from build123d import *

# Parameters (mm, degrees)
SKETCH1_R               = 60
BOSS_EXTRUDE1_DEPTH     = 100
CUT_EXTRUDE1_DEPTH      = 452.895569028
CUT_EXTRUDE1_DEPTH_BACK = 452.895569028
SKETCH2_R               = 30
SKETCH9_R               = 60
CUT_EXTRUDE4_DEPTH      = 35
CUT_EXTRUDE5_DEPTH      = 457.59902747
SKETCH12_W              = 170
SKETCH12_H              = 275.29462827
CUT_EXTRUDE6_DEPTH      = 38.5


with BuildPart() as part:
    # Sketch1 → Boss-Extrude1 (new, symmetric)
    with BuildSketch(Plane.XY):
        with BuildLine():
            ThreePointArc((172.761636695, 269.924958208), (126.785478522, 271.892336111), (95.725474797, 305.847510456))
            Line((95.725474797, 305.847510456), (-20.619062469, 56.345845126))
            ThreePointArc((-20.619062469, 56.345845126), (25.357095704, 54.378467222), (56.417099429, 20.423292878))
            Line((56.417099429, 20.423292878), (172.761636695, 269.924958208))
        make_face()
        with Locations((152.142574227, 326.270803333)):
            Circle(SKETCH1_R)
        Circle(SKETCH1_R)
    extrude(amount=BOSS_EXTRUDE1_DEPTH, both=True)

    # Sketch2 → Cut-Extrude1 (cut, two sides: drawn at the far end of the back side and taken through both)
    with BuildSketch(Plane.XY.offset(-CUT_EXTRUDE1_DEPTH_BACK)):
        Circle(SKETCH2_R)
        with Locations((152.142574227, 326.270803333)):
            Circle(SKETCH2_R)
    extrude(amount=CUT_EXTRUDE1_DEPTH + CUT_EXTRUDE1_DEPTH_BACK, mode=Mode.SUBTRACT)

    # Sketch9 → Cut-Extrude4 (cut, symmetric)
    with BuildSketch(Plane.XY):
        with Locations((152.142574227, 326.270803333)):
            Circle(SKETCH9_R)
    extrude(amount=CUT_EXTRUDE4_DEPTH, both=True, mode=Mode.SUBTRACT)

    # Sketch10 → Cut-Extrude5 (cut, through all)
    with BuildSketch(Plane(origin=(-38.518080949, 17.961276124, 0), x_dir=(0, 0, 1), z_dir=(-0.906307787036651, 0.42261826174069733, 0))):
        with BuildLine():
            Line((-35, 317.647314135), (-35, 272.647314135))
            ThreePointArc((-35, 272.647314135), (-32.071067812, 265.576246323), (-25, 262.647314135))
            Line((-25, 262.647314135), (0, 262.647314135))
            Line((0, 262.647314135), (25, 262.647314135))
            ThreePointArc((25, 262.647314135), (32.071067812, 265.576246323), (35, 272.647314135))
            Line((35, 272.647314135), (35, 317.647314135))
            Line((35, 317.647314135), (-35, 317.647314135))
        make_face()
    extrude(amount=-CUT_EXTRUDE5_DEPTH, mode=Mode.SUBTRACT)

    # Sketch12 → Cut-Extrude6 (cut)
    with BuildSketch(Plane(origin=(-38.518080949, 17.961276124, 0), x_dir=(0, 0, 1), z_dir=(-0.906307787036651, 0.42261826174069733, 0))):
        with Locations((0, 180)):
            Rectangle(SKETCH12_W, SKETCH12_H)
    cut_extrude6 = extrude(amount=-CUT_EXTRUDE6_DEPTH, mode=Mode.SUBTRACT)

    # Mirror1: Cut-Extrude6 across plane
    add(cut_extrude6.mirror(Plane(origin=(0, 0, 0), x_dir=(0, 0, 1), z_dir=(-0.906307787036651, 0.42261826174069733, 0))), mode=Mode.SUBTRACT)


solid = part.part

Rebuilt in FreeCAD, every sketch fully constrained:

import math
import FreeCAD as App
import Part
import Sketcher
Q = App.Units.Quantity


def add_polygon(sketch, points):
    """Adds a closed chain of lines whose ends are joined by coincident constraints."""
    first, n = sketch.GeometryCount, len(points)
    for a, b in zip(points, points[1:] + points[:1]):
        sketch.addGeometry(Part.LineSegment(App.Vector(*a, 0), App.Vector(*b, 0)), False)
    for i in range(n):
        sketch.addConstraint(Sketcher.Constraint("Coincident", first + i, 2, first + (i + 1) % n, 1))

doc = App.newDocument("Part")
body = doc.addObject("PartDesign::Body", "Body")

# Sketch on XY plane
sketch1 = body.newObject("Sketcher::SketchObject", "Sketch")
sketch1.AttachmentSupport = (doc.getObject("XY_Plane"), [""])
sketch1.MapMode = "FlatFace"
sketch1.addGeometry(Part.LineSegment(App.Vector(96, 306, 0), App.Vector(-21, 56, 0)), False)
sketch1.addGeometry(Part.ArcOfCircle(Part.Circle(App.Vector(0, 0, 0), App.Vector(0, 0, 1), 60), math.radians(110), math.radians(380)), False)
sketch1.addGeometry(Part.LineSegment(App.Vector(56, 20, 0), App.Vector(173, 270, 0)), False)
sketch1.addGeometry(Part.ArcOfCircle(Part.Circle(App.Vector(152, 326, 0), App.Vector(0, 0, 1), 60), math.radians(-70), math.radians(200)), False)
sketch1.addConstraint(Sketcher.Constraint("Coincident", 0, 2, 1, 1))
sketch1.addConstraint(Sketcher.Constraint("Coincident", 1, 2, 2, 1))
sketch1.addConstraint(Sketcher.Constraint("Coincident", 2, 2, 3, 1))
sketch1.addConstraint(Sketcher.Constraint("Coincident", 3, 2, 0, 1))
sketch1.addConstraint(Sketcher.Constraint("Coincident", 1, 3, -1, 1))
sketch1.addConstraint(Sketcher.Constraint("Equal", 1, 3))
sketch1.addConstraint(Sketcher.Constraint("Parallel", 0, 2))
sketch1.addConstraint(Sketcher.Constraint("Equal", 0, 2))
sketch1.addConstraint(Sketcher.Constraint("Radius", 1, 60.0))
sketch1.addConstraint(Sketcher.Constraint("Angle", 0, Q("-115 deg")))
sketch1.addConstraint(Sketcher.Constraint("DistanceX", -1, 1, 1, 2, 56.417099))
sketch1.addConstraint(Sketcher.Constraint("DistanceX", 0, 2, 2, 2, 193.380699))
sketch1.addConstraint(Sketcher.Constraint("Distance", 0, 275.294628))
pad1 = body.newObject("PartDesign::Pad", "Pad")
pad1.Profile = sketch1
pad1.Length = 200
pad1.Midplane = True

# Sketch on XY plane
sketch2 = body.newObject("Sketcher::SketchObject", "Sketch001")
sketch2.AttachmentSupport = (doc.getObject("XY_Plane"), [""])
sketch2.MapMode = "FlatFace"
sketch2.addGeometry(Part.Circle(App.Vector(0, 0, 0), App.Vector(0, 0, 1), 30), False)
sketch2.addGeometry(Part.Circle(App.Vector(152, 326, 0), App.Vector(0, 0, 1), 30), False)
sketch2.addConstraint(Sketcher.Constraint("Coincident", 0, 3, -1, 1))
sketch2.addConstraint(Sketcher.Constraint("Equal", 0, 1))
sketch2.addConstraint(Sketcher.Constraint("Diameter", 0, 60.0))
sketch2.addConstraint(Sketcher.Constraint("DistanceX", -1, 1, 1, 3, 152.142574))
sketch2.addConstraint(Sketcher.Constraint("DistanceY", -1, 1, 1, 3, 326.270803))
pocket1 = body.newObject("PartDesign::Pocket", "Pocket")
pocket1.Profile = sketch2
pocket1.Type = "ThroughAll"
pocket1.Midplane = True

# Sketch on XY plane
sketch3 = body.newObject("Sketcher::SketchObject", "Sketch002")
sketch3.AttachmentSupport = (doc.getObject("XY_Plane"), [""])
sketch3.MapMode = "FlatFace"
sketch3.addGeometry(Part.Circle(App.Vector(152, 326, 0), App.Vector(0, 0, 1), 60), False)
sketch3.addConstraint(Sketcher.Constraint("Diameter", 0, 120.0))
sketch3.addConstraint(Sketcher.Constraint("DistanceX", -1, 1, 0, 3, 152.142574))
sketch3.addConstraint(Sketcher.Constraint("DistanceY", -1, 1, 0, 3, 326.270803))
pocket2 = body.newObject("PartDesign::Pocket", "Pocket001")
pocket2.Profile = sketch3
pocket2.Length = 70
pocket2.Midplane = True

# Sketch on an angled plane
sketch4 = body.newObject("Sketcher::SketchObject", "Sketch003")
sketch4.Placement = App.Placement(App.Vector(-38.518081, 17.961276, 0), App.Rotation(App.Vector(0, 0, 1), App.Vector(0.422618262, 0.906307787, 0), App.Vector(-0.906307787, 0.422618262, 0), "ZXY"))
sketch4.addGeometry(Part.LineSegment(App.Vector(-35, 318, 0), App.Vector(-35, 273, 0)), False)
sketch4.addGeometry(Part.ArcOfCircle(Part.Circle(App.Vector(-25, 273, 0), App.Vector(0, 0, 1), 10), math.radians(180), math.radians(270)), False)
sketch4.addGeometry(Part.LineSegment(App.Vector(-25, 263, 0), App.Vector(25, 263, 0)), False)
sketch4.addGeometry(Part.ArcOfCircle(Part.Circle(App.Vector(25, 273, 0), App.Vector(0, 0, 1), 10), math.radians(-90), math.radians(0)), False)
sketch4.addGeometry(Part.LineSegment(App.Vector(35, 273, 0), App.Vector(35, 318, 0)), False)
sketch4.addGeometry(Part.LineSegment(App.Vector(35, 318, 0), App.Vector(-35, 318, 0)), False)
sketch4.addConstraint(Sketcher.Constraint("Tangent", 0, 2, 1, 1))
sketch4.addConstraint(Sketcher.Constraint("Tangent", 1, 2, 2, 1))
sketch4.addConstraint(Sketcher.Constraint("Tangent", 2, 2, 3, 1))
sketch4.addConstraint(Sketcher.Constraint("Tangent", 3, 2, 4, 1))
sketch4.addConstraint(Sketcher.Constraint("Coincident", 4, 2, 5, 1))
sketch4.addConstraint(Sketcher.Constraint("Coincident", 5, 2, 0, 1))
sketch4.addConstraint(Sketcher.Constraint("Vertical", 0))
sketch4.addConstraint(Sketcher.Constraint("Horizontal", 2))
sketch4.addConstraint(Sketcher.Constraint("Vertical", 4))
sketch4.addConstraint(Sketcher.Constraint("Horizontal", 5))
sketch4.addConstraint(Sketcher.Constraint("Equal", 1, 3))
sketch4.addConstraint(Sketcher.Constraint("Radius", 1, 10.0))
sketch4.addConstraint(Sketcher.Constraint("DistanceX", 2, 1, 2, 2, 50.0))
sketch4.addConstraint(Sketcher.Constraint("DistanceY", 0, 2, 0, 1, 45.0))
sketch4.addConstraint(Sketcher.Constraint("DistanceX", 1, 3, -1, 1, 25.0))
sketch4.addConstraint(Sketcher.Constraint("DistanceY", -1, 1, 1, 3, 272.647314))
pocket3 = body.newObject("PartDesign::Pocket", "Pocket002")
pocket3.Profile = sketch4
pocket3.Type = "ThroughAll"

# Sketch on an angled plane
sketch5 = body.newObject("Sketcher::SketchObject", "Sketch004")
sketch5.Placement = App.Placement(App.Vector(-38.518081, 17.961276, 0), App.Rotation(App.Vector(0, 0, 1), App.Vector(0.422618262, 0.906307787, 0), App.Vector(-0.906307787, 0.422618262, 0), "ZXY"))
add_polygon(sketch5, [(-85, 318), (-85, 42), (85, 42), (85, 318)])  # lines 0-3
sketch5.addConstraint(Sketcher.Constraint("Vertical", 0))
sketch5.addConstraint(Sketcher.Constraint("Horizontal", 1))
sketch5.addConstraint(Sketcher.Constraint("Vertical", 2))
sketch5.addConstraint(Sketcher.Constraint("Horizontal", 3))
sketch5.addConstraint(Sketcher.Constraint("DistanceX", 1, 1, 1, 2, 170.0))
sketch5.addConstraint(Sketcher.Constraint("DistanceX", 0, 2, -1, 1, 85.0))
sketch5.addConstraint(Sketcher.Constraint("DistanceY", 0, 2, 0, 1, 275.294628))
sketch5.addConstraint(Sketcher.Constraint("DistanceY", -1, 1, 0, 2, 42.352686))
pocket4 = body.newObject("PartDesign::Pocket", "Pocket003")
pocket4.Profile = sketch5
pocket4.Length = 38.5
doc.recompute()

datumplane = body.newObject("PartDesign::Plane", "DatumPlane")
datumplane.Placement = App.Placement(App.Vector(0, 0, 0), App.Rotation(App.Vector(0.422618262, 0.906307787, 0), App.Vector(0, 0, -1), App.Vector(-0.906307787, 0.422618262, 0), "ZXY"))
mirrored = body.newObject("PartDesign::Mirrored", "Mirrored")
mirrored.Originals = [pocket4]
mirrored.MirrorPlane = (datumplane, [""])
body.Tip = mirrored

doc.recompute()
